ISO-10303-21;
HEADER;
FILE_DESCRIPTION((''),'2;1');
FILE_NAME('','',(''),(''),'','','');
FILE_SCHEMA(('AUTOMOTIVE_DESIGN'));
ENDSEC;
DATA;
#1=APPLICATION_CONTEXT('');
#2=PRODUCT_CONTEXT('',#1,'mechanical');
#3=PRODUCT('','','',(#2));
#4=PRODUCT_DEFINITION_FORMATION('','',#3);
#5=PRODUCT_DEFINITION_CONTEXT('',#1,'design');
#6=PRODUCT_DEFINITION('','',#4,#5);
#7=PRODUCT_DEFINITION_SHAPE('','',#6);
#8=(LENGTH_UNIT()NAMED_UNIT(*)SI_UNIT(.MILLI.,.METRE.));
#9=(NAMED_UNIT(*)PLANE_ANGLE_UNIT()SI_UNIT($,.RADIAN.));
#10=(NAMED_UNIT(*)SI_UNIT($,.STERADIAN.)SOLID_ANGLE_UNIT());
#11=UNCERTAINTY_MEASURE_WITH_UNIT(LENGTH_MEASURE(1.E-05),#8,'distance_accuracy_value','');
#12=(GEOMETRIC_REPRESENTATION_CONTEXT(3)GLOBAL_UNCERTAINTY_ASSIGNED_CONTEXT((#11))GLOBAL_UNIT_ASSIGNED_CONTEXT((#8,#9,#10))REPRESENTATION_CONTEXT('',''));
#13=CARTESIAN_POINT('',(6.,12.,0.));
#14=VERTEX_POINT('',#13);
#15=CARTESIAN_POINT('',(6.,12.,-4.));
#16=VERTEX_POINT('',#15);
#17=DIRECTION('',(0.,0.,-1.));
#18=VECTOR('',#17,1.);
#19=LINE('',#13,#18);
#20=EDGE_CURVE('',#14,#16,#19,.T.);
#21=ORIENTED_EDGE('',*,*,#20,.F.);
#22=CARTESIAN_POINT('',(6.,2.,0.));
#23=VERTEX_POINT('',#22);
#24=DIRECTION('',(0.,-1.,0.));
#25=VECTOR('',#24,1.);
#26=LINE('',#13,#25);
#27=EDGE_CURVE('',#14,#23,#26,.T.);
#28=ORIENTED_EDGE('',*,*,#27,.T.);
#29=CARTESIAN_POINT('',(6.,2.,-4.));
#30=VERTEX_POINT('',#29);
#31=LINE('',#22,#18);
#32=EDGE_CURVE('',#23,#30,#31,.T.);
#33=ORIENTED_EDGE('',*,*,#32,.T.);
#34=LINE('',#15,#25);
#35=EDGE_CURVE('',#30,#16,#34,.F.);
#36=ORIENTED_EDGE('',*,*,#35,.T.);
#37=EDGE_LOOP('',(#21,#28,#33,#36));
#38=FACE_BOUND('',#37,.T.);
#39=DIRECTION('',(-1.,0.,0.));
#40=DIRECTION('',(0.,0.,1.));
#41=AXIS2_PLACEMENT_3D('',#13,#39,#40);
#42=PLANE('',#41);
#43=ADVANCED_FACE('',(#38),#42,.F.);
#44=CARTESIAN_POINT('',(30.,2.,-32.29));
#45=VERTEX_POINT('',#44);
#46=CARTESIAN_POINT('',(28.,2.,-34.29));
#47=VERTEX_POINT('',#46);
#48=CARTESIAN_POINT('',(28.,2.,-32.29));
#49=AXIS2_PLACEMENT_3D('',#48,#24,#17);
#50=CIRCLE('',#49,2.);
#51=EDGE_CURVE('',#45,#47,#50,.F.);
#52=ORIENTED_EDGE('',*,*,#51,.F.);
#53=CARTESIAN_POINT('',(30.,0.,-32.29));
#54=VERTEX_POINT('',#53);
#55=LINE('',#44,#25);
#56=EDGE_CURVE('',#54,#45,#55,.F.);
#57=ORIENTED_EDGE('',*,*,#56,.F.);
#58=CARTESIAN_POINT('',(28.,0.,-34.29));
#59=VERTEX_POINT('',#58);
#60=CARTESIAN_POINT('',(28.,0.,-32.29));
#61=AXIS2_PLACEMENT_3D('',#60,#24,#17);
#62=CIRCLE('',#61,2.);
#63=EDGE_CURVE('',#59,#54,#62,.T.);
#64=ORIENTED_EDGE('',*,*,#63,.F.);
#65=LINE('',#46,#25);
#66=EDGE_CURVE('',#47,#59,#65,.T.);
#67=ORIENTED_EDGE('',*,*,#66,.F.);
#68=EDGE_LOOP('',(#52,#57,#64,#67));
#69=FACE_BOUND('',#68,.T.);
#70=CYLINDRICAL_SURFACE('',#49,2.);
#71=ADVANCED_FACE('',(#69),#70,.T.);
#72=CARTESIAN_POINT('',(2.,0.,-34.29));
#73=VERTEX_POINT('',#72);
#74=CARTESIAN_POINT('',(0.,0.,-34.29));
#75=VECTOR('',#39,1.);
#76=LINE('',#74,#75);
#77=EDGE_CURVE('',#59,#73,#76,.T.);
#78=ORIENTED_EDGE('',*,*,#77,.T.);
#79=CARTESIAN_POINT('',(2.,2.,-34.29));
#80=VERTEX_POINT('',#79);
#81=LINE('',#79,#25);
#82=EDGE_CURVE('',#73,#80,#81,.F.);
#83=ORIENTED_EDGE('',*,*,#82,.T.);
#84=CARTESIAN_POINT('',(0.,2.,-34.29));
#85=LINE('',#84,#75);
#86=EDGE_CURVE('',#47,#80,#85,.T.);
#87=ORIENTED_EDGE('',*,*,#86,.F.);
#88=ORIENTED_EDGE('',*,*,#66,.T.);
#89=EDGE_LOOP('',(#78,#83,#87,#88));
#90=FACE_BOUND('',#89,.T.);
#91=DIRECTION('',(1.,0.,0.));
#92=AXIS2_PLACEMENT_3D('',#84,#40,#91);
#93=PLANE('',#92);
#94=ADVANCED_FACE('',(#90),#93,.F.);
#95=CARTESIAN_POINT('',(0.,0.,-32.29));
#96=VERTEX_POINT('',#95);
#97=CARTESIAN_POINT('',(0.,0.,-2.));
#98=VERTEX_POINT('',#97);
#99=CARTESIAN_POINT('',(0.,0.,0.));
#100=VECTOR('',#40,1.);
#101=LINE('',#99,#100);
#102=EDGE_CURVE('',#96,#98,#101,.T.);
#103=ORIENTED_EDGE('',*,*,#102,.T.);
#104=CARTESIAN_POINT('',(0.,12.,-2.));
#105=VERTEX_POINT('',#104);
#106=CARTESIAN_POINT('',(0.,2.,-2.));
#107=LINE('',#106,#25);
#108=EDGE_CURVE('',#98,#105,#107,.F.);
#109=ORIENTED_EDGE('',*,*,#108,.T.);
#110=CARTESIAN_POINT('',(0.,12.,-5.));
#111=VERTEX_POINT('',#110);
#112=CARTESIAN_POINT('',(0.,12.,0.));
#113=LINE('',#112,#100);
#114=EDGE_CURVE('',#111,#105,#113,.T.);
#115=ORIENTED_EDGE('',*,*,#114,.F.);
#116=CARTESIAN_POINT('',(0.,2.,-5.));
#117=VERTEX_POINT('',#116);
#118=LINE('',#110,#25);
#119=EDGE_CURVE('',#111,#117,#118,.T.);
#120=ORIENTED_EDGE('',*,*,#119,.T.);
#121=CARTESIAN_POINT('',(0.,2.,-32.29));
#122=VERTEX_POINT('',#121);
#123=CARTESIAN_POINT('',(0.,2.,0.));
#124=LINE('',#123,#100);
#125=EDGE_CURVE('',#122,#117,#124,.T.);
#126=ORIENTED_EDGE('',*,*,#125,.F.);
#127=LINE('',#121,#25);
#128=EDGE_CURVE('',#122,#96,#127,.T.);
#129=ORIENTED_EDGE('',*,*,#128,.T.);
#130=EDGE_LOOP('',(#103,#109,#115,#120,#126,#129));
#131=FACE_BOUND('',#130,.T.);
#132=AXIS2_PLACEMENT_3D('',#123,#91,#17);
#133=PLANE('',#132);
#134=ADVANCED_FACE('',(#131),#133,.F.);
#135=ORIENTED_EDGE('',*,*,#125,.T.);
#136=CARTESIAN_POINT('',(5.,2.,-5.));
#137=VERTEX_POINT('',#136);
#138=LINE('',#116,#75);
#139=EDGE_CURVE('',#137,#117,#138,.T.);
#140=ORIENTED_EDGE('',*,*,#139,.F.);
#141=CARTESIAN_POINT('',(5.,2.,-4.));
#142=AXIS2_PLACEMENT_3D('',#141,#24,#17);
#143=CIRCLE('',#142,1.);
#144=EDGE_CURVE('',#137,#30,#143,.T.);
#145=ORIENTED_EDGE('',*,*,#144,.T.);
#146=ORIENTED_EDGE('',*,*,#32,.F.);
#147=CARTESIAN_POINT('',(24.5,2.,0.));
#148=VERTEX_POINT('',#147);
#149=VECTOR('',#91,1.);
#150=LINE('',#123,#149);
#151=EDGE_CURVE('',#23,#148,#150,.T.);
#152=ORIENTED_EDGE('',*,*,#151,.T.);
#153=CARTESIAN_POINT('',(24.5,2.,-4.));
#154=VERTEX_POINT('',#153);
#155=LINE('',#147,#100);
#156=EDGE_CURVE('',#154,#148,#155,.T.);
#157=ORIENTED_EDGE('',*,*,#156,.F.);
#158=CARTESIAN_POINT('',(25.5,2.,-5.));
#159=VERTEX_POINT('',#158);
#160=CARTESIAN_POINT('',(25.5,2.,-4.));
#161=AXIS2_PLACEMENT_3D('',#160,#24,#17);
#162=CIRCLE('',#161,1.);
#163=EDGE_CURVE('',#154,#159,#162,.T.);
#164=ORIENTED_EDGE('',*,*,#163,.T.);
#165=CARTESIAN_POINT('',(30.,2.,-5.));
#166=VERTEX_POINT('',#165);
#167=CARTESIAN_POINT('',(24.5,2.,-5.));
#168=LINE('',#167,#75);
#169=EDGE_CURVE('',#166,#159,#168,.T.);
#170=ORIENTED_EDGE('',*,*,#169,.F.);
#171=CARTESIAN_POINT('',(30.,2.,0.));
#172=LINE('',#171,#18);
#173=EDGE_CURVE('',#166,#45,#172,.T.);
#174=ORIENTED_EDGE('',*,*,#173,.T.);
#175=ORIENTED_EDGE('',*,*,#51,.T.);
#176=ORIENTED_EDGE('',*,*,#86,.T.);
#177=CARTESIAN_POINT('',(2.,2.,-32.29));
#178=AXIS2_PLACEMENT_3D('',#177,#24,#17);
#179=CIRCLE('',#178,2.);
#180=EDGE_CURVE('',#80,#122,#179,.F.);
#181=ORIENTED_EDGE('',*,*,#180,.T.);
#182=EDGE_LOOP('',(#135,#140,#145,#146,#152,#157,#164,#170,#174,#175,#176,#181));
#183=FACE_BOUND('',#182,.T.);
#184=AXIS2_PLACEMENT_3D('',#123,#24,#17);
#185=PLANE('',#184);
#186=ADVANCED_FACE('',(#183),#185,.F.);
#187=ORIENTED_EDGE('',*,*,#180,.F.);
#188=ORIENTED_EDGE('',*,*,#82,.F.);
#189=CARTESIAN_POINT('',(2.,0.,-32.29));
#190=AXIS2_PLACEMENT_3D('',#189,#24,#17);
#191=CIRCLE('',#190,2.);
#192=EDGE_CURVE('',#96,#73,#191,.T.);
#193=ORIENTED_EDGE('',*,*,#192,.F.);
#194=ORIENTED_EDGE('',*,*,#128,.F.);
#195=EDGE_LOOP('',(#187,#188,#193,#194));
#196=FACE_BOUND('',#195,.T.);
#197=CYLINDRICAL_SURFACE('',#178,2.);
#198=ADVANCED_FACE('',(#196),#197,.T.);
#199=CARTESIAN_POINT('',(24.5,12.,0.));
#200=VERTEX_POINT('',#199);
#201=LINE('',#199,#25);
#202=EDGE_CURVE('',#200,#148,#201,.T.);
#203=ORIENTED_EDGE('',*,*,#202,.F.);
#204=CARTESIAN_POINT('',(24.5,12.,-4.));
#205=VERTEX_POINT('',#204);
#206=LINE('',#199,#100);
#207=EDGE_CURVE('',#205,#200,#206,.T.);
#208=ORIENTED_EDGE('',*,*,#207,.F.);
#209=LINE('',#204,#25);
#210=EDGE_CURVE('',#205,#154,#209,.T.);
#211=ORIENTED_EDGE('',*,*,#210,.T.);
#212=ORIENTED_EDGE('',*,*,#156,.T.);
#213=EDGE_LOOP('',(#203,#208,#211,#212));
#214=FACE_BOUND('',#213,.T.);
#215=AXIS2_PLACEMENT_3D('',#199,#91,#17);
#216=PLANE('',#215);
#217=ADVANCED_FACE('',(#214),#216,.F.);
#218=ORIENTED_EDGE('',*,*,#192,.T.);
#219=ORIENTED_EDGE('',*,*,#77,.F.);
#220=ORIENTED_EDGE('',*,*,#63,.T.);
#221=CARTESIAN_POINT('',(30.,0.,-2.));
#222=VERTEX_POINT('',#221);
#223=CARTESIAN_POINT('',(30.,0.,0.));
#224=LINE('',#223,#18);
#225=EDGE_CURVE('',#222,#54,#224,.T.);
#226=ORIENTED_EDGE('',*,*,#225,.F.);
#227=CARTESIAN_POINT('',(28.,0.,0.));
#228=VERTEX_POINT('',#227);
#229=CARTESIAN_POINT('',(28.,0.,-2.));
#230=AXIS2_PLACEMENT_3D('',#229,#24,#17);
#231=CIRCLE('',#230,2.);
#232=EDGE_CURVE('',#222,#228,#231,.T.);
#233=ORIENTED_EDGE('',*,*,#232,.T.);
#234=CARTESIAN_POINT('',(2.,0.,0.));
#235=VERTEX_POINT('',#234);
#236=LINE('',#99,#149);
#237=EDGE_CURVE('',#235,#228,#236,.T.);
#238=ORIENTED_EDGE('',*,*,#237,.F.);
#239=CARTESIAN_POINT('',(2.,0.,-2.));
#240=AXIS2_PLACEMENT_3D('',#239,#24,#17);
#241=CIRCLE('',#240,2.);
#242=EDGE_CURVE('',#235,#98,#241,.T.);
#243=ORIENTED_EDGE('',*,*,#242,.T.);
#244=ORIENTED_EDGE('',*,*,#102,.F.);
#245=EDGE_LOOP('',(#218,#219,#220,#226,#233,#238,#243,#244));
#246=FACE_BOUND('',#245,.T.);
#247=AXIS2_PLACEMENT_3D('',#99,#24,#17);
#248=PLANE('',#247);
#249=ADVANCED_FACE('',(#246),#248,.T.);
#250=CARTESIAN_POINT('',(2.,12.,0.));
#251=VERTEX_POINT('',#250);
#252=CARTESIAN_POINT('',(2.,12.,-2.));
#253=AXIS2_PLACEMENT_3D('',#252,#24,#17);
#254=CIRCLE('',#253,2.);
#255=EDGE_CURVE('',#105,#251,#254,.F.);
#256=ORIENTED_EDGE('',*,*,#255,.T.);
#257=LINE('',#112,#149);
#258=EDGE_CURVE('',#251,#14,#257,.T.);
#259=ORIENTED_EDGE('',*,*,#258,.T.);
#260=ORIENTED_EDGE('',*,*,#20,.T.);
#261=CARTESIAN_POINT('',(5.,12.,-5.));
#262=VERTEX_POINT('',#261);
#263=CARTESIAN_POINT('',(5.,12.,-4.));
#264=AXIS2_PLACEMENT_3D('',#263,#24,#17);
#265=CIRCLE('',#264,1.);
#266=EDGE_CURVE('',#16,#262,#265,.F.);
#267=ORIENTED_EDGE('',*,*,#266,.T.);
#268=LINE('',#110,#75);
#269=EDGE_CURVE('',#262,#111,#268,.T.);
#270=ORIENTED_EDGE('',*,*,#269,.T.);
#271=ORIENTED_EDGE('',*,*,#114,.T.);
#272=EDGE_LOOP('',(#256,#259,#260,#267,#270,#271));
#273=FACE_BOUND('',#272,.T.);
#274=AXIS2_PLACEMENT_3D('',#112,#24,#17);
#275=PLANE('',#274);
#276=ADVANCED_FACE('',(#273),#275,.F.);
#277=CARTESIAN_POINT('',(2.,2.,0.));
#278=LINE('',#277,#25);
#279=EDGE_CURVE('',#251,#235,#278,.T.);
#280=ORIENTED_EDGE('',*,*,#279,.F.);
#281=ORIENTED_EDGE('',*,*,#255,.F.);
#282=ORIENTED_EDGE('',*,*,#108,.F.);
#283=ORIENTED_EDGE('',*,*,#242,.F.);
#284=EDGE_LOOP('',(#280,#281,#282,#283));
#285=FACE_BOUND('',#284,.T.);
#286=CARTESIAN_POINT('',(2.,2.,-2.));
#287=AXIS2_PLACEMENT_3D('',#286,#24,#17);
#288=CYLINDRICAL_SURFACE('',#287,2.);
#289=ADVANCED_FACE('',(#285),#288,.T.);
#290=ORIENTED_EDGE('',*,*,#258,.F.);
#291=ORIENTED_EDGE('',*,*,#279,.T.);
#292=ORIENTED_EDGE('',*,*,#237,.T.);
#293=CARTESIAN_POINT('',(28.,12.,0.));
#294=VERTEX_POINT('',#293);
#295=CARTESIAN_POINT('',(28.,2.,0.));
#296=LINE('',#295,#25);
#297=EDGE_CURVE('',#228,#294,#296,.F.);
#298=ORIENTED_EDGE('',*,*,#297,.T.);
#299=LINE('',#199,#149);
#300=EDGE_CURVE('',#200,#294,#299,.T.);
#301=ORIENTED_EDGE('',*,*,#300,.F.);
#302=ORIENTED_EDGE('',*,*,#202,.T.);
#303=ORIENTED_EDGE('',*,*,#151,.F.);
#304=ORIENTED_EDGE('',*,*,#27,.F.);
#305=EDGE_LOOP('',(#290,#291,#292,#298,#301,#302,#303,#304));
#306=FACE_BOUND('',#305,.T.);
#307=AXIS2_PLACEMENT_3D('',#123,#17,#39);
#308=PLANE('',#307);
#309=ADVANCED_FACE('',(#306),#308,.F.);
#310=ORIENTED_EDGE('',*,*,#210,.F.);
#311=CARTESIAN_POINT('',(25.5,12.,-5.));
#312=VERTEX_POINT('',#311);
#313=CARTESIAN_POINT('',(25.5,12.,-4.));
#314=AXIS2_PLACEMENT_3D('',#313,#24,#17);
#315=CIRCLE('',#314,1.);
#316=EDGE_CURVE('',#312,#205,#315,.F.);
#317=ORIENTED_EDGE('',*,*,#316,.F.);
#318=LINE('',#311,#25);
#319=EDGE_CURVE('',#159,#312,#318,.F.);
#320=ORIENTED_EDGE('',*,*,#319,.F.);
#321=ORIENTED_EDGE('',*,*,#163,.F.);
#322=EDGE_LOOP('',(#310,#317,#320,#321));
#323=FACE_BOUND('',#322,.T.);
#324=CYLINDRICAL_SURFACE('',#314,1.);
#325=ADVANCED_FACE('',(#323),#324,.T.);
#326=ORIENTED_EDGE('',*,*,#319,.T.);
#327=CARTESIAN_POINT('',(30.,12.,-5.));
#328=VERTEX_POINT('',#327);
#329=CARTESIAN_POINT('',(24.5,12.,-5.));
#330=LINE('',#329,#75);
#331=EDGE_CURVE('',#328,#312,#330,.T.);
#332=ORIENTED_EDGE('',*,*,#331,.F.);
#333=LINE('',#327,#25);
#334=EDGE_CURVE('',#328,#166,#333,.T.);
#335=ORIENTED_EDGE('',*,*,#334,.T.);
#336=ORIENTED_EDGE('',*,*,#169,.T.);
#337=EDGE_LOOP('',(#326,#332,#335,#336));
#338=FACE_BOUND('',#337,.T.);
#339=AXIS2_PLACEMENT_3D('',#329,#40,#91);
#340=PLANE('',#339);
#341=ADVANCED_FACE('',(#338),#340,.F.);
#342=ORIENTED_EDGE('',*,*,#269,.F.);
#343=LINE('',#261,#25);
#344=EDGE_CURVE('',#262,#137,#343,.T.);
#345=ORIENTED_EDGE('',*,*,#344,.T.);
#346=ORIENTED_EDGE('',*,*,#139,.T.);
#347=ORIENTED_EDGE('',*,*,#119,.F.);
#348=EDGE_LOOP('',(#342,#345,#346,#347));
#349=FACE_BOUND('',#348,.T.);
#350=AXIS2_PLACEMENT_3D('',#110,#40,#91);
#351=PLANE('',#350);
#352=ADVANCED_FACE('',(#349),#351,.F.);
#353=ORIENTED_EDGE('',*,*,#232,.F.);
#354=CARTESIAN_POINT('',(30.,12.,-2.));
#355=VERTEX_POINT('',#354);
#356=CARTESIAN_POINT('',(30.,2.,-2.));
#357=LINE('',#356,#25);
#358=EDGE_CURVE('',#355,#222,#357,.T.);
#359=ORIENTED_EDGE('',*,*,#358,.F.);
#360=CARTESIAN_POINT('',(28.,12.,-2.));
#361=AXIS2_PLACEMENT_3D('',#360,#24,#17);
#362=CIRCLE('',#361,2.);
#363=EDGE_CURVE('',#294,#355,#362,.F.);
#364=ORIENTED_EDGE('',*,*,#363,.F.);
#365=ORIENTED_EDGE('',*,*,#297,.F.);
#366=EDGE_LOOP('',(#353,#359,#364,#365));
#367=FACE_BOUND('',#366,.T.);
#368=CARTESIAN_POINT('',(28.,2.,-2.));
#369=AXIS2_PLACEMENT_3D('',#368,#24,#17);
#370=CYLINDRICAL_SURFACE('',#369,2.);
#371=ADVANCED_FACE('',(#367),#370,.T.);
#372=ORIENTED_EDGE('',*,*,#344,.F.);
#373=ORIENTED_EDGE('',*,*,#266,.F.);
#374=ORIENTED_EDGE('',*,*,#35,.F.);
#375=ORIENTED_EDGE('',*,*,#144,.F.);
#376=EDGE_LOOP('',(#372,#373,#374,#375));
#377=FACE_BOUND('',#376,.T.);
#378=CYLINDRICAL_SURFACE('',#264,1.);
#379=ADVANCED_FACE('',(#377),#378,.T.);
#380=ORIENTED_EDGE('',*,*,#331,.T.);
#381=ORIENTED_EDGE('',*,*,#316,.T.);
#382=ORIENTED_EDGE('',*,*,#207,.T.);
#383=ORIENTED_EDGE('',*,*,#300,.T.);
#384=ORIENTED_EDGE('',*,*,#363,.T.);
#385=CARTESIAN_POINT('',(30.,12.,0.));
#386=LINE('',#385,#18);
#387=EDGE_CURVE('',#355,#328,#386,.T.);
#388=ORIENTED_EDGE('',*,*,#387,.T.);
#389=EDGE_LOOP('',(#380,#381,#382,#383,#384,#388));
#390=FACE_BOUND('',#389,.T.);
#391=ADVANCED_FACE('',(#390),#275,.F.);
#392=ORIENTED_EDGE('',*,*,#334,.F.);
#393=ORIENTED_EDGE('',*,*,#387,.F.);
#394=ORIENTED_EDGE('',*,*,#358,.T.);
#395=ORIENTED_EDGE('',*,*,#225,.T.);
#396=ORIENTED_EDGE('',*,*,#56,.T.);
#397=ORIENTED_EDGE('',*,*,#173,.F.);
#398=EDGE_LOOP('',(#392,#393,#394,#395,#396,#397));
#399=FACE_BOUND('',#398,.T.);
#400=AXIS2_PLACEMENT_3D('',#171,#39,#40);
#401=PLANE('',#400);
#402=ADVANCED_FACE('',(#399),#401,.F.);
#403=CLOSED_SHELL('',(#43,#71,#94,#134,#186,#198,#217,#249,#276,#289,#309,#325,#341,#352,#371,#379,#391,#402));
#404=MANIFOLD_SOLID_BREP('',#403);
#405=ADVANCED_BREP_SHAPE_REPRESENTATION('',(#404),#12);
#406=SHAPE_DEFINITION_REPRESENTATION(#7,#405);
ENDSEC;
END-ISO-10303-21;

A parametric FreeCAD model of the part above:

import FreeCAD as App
import Part
import Sketcher


def edges_at(feature, points):
    """Names of the edges that pass closest to the given points."""
    edges = feature.Shape.Edges
    near = lambda p: min(range(len(edges)), key=lambda i: edges[i].distToShape(Part.Vertex(*p))[0])
    return sorted({f"Edge{near(p) + 1}" for p in points})

doc = App.newDocument("Part")
body = doc.addObject("PartDesign::Body", "Body")

# Sketch on XZ plane
sketch1 = body.newObject("Sketcher::SketchObject", "Sketch")
sketch1.AttachmentSupport = (doc.getObject("XZ_Plane"), [""])
sketch1.MapMode = "FlatFace"
sketch1.addGeometry([
    Part.LineSegment(App.Vector(0, -34.29, 0), App.Vector(0, 0, 0)),
    Part.LineSegment(App.Vector(0, 0, 0), App.Vector(30, 0, 0)),
    Part.LineSegment(App.Vector(30, 0, 0), App.Vector(30, -34.29, 0)),
    Part.LineSegment(App.Vector(30, -34.29, 0), App.Vector(0, -34.29, 0)),
], False)
sketch1.addConstraint([
    Sketcher.Constraint("Coincident", 0, 2, 1, 1),
    Sketcher.Constraint("Coincident", 1, 2, 2, 1),
    Sketcher.Constraint("Coincident", 2, 2, 3, 1),
    Sketcher.Constraint("Coincident", 3, 2, 0, 1),
    Sketcher.Constraint("Vertical", 0),
    Sketcher.Constraint("Horizontal", 1),
    Sketcher.Constraint("Vertical", 2),
    Sketcher.Constraint("Horizontal", 3),
    Sketcher.Constraint("Coincident", 0, 2, -1, 1),
    Sketcher.Constraint("DistanceX", 1, 1, 1, 2, 30.0),
    Sketcher.Constraint("DistanceY", 0, 1, 0, 2, 34.29),
])
pad1 = body.newObject("PartDesign::Pad", "Pad")
pad1.Profile = sketch1
pad1.Length = 2
pad1.Reversed = True

# Sketch on XZ plane
sketch2 = body.newObject("Sketcher::SketchObject", "Sketch001")
sketch2.AttachmentSupport = (doc.getObject("XZ_Plane"), [""])
sketch2.MapMode = "FlatFace"
sketch2.AttachmentOffset = App.Placement(App.Vector(0, 0, -2), App.Rotation())
sketch2.addGeometry([
    Part.LineSegment(App.Vector(24.5, -5, 0), App.Vector(24.5, 0, 0)),  # 0
    Part.LineSegment(App.Vector(24.5, 0, 0), App.Vector(30, 0, 0)),  # 1
    Part.LineSegment(App.Vector(30, 0, 0), App.Vector(30, -5, 0)),  # 2
    Part.LineSegment(App.Vector(30, -5, 0), App.Vector(24.5, -5, 0)),  # 3
    Part.LineSegment(App.Vector(0, -5, 0), App.Vector(0, 0, 0)),  # 4
    Part.LineSegment(App.Vector(0, 0, 0), App.Vector(6, 0, 0)),  # 5
    Part.LineSegment(App.Vector(6, 0, 0), App.Vector(6, -5, 0)),  # 6
    Part.LineSegment(App.Vector(6, -5, 0), App.Vector(0, -5, 0)),  # 7
], False)
sketch2.addConstraint([
    Sketcher.Constraint("Coincident", 0, 2, 1, 1),
    Sketcher.Constraint("Coincident", 1, 2, 2, 1),
    Sketcher.Constraint("Coincident", 2, 2, 3, 1),
    Sketcher.Constraint("Coincident", 3, 2, 0, 1),
    Sketcher.Constraint("Coincident", 4, 2, 5, 1),
    Sketcher.Constraint("Coincident", 5, 2, 6, 1),
    Sketcher.Constraint("Coincident", 6, 2, 7, 1),
    Sketcher.Constraint("Coincident", 7, 2, 4, 1),
    Sketcher.Constraint("Vertical", 0),
    Sketcher.Constraint("Horizontal", 1),
    Sketcher.Constraint("Vertical", 2),
    Sketcher.Constraint("Horizontal", 3),
    Sketcher.Constraint("Vertical", 4),
    Sketcher.Constraint("Horizontal", 5),
    Sketcher.Constraint("Vertical", 6),
    Sketcher.Constraint("Horizontal", 7),
    Sketcher.Constraint("Coincident", 4, 2, -1, 1),
    Sketcher.Constraint("PointOnObject", 0, 2, -1),
    Sketcher.Constraint("Horizontal", 3, 2, 6, 2),
    Sketcher.Constraint("DistanceX", 5, 1, 5, 2, 6.0),
    Sketcher.Constraint("DistanceY", 0, 1, 0, 2, 5.0),
    Sketcher.Constraint("DistanceX", 1, 1, 1, 2, 5.5),
    Sketcher.Constraint("DistanceX", -1, 1, 1, 2, 30.0),
])
pad2 = body.newObject("PartDesign::Pad", "Pad001")
pad2.Profile = sketch2
pad2.Length = 10
pad2.Reversed = True
doc.recompute()

fillet = body.newObject("PartDesign::Fillet", "Fillet")
fillet.Base = (pad2, edges_at(pad2, [
    (0, 1, -34.29),
    (30, 1, -34.29),
    (30, 6, 0),
    (0, 6, 0),
]))
fillet.Radius = 2
doc.recompute()

fillet2 = body.newObject("PartDesign::Fillet", "Fillet001")
fillet2.Base = (fillet, edges_at(fillet, [(24.5, 7, -5), (6, 7, -5)]))
fillet2.Radius = 1

doc.recompute()
